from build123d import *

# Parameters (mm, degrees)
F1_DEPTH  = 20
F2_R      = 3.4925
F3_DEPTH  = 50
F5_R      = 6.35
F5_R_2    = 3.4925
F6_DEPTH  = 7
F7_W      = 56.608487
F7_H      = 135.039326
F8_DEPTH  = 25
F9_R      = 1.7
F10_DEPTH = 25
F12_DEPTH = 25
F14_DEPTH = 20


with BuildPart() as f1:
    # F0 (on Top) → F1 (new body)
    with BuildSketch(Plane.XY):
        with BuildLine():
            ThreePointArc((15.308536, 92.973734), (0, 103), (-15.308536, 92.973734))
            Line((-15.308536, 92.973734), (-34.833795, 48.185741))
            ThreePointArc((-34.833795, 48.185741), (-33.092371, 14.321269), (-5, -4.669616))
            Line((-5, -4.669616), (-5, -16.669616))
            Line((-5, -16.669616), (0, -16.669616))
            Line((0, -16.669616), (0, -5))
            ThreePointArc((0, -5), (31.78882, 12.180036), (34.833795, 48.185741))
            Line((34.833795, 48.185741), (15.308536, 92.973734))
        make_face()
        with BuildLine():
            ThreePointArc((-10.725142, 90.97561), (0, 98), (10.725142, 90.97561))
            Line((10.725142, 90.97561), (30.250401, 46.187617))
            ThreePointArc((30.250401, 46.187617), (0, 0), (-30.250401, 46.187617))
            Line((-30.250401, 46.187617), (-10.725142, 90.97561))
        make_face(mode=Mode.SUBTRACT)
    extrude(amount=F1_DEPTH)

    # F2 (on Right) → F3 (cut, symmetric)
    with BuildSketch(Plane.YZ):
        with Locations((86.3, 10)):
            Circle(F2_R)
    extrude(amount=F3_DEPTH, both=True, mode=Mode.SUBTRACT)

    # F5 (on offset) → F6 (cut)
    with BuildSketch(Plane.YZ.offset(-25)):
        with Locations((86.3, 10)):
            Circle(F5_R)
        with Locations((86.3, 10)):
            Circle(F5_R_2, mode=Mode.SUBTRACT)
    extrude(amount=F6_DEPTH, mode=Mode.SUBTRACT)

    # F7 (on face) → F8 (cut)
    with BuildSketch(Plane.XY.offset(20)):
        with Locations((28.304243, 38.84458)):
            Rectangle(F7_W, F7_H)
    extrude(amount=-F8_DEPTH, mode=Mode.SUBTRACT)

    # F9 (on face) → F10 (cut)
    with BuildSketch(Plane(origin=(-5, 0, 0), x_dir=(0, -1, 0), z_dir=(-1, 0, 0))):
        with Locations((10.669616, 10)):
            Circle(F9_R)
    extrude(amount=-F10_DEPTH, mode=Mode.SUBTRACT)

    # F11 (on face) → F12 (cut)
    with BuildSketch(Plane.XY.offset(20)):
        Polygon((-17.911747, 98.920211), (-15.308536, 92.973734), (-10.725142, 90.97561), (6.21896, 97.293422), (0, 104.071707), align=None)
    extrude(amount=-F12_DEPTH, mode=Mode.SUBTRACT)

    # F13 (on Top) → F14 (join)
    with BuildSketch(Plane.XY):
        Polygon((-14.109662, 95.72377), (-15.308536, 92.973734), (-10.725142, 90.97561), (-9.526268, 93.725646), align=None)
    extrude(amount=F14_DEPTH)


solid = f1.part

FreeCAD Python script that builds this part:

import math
import FreeCAD as App
import Part
import Sketcher

V = App.Vector


def add_polygon(sketch, points):
    """Adds a closed chain of lines whose ends are joined by coincident constraints."""
    first, n = sketch.GeometryCount, len(points)
    for a, b in zip(points, points[1:] + points[:1]):
        sketch.addGeometry(Part.LineSegment(App.Vector(*a, 0), App.Vector(*b, 0)), False)
    for i in range(n):
        sketch.addConstraint(Sketcher.Constraint("Coincident", first + i, 2, first + (i + 1) % n, 1))

doc = App.newDocument("Part")
body = doc.addObject("PartDesign::Body", "Body")

# Sketch on XY plane
sketch1 = body.newObject("Sketcher::SketchObject", "Sketch")
sketch1.AttachmentSupport = (doc.getObject("XY_Plane"), [""])
sketch1.MapMode = "FlatFace"
sketch1.addGeometry(Part.ArcOfCircle(Part.Circle(V(0, 86, 0), V(0, 0, 1), 17), math.radians(24), math.radians(156)), False)
sketch1.addGeometry(Part.LineSegment(V(-15, 93, 0), V(-35, 48, 0)), False)
sketch1.addGeometry(Part.ArcOfCircle(Part.Circle(V(0, 33, 0), V(0, 0, 1), 38), math.radians(156), math.radians(262)), False)
sketch1.addGeometry(Part.LineSegment(V(-5, -5, 0), V(-5, -17, 0)), False)
sketch1.addGeometry(Part.LineSegment(V(-5, -17, 0), V(0, -17, 0)), False)
sketch1.addGeometry(Part.LineSegment(V(0, -17, 0), V(0, -5, 0)), False)
sketch1.addGeometry(Part.ArcOfCircle(Part.Circle(V(0, 33, 0), V(0, 0, 1), 38), math.radians(-90), math.radians(24)), False)
sketch1.addGeometry(Part.LineSegment(V(35, 48, 0), V(15, 93, 0)), False)
sketch1.addGeometry(Part.LineSegment(V(-30, 46, 0), V(-11, 91, 0)), False)
sketch1.addGeometry(Part.ArcOfCircle(Part.Circle(V(0, 86, 0), V(0, 0, 1), 12), math.radians(24), math.radians(156)), False)
sketch1.addGeometry(Part.LineSegment(V(11, 91, 0), V(30, 46, 0)), False)
sketch1.addGeometry(Part.ArcOfCircle(Part.Circle(V(0, 33, 0), V(0, 0, 1), 33), math.radians(156), math.radians(384)), False)
sketch1.addConstraint(Sketcher.Constraint("Tangent", 0, 2, 1, 1))
sketch1.addConstraint(Sketcher.Constraint("Tangent", 1, 2, 2, 1))
sketch1.addConstraint(Sketcher.Constraint("Coincident", 2, 2, 3, 1))
sketch1.addConstraint(Sketcher.Constraint("Coincident", 3, 2, 4, 1))
sketch1.addConstraint(Sketcher.Constraint("Coincident", 4, 2, 5, 1))
sketch1.addConstraint(Sketcher.Constraint("Coincident", 5, 2, 6, 1))
sketch1.addConstraint(Sketcher.Constraint("Tangent", 6, 2, 7, 1))
sketch1.addConstraint(Sketcher.Constraint("Tangent", 7, 2, 0, 1))
sketch1.addConstraint(Sketcher.Constraint("Tangent", 8, 2, 9, 2))
sketch1.addConstraint(Sketcher.Constraint("Tangent", 9, 1, 10, 1))
sketch1.addConstraint(Sketcher.Constraint("Tangent", 10, 2, 11, 2))
sketch1.addConstraint(Sketcher.Constraint("Tangent", 11, 1, 8, 1))
sketch1.addConstraint(Sketcher.Constraint("Vertical", 3))
sketch1.addConstraint(Sketcher.Constraint("Horizontal", 4))
sketch1.addConstraint(Sketcher.Constraint("Vertical", 5))
sketch1.addConstraint(Sketcher.Constraint("Coincident", 6, 3, 2, 3))
sketch1.addConstraint(Sketcher.Constraint("Coincident", 9, 3, 0, 3))
sketch1.addConstraint(Sketcher.Constraint("Coincident", 11, 3, 2, 3))
sketch1.addConstraint(Sketcher.Constraint("Equal", 2, 6))
sketch1.addConstraint(Sketcher.Constraint("Symmetric", 1, 2, 6, 2, -2))
sketch1.addConstraint(Sketcher.Constraint("PointOnObject", 4, 2, -2))
sketch1.addConstraint(Sketcher.Constraint("Parallel", 1, 8))
sketch1.addConstraint(Sketcher.Constraint("Radius", 2, 37.999999))
sketch1.addConstraint(Sketcher.Constraint("Radius", 11, 33.0))
sketch1.addConstraint(Sketcher.Constraint("Radius", 0, 16.7))
sketch1.addConstraint(Sketcher.Constraint("DistanceX", 4, 1, 4, 2, 5.0))
sketch1.addConstraint(Sketcher.Constraint("DistanceY", 3, 2, 3, 1, 12.0))
sketch1.addConstraint(Sketcher.Constraint("DistanceY", -1, 1, 2, 3, 33.0))
sketch1.addConstraint(Sketcher.Constraint("DistanceY", -1, 1, 0, 3, 86.3))
pad1 = body.newObject("PartDesign::Pad", "Pad")
pad1.Profile = sketch1
pad1.Length = 20

# Sketch on YZ plane
sketch2 = body.newObject("Sketcher::SketchObject", "Sketch001")
sketch2.AttachmentSupport = (doc.getObject("YZ_Plane"), [""])
sketch2.MapMode = "FlatFace"
sketch2.addGeometry(Part.Circle(V(86.3, 10, 0), V(0, 0, 1), 3.5), False)
sketch2.addConstraint(Sketcher.Constraint("Diameter", 0, 6.985))
sketch2.addConstraint(Sketcher.Constraint("DistanceY", -1, 1, 0, 3, 10.0))
sketch2.addConstraint(Sketcher.Constraint("DistanceX", -1, 1, 0, 3, 86.3))
pocket1 = body.newObject("PartDesign::Pocket", "Pocket")
pocket1.Profile = sketch2
pocket1.Length = 100
pocket1.Midplane = True

# Sketch on YZ plane
sketch3 = body.newObject("Sketcher::SketchObject", "Sketch002")
sketch3.AttachmentSupport = (doc.getObject("YZ_Plane"), [""])
sketch3.MapMode = "FlatFace"
sketch3.AttachmentOffset = App.Placement(V(0, 0, -25), App.Rotation())
sketch3.addGeometry(Part.Circle(V(86.3, 10, 0), V(0, 0, 1), 6.3), False)
sketch3.addGeometry(Part.Circle(V(86.3, 10, 0), V(0, 0, 1), 3.5), False)
sketch3.addConstraint(Sketcher.Constraint("Coincident", 1, 3, 0, 3))
sketch3.addConstraint(Sketcher.Constraint("Diameter", 0, 12.7))
sketch3.addConstraint(Sketcher.Constraint("Diameter", 1, 6.985))
sketch3.addConstraint(Sketcher.Constraint("DistanceY", -1, 1, 0, 3, 10.0))
sketch3.addConstraint(Sketcher.Constraint("DistanceX", -1, 1, 0, 3, 86.3))
pocket2 = body.newObject("PartDesign::Pocket", "Pocket001")
pocket2.Profile = sketch3
pocket2.Length = 7
pocket2.Reversed = True

# Sketch on XY plane
sketch4 = body.newObject("Sketcher::SketchObject", "Sketch003")
sketch4.AttachmentSupport = (doc.getObject("XY_Plane"), [""])
sketch4.MapMode = "FlatFace"
sketch4.AttachmentOffset = App.Placement(V(0, 0, 20), App.Rotation())
add_polygon(sketch4, [(0, 106), (0, -29), (57, -29), (57, 106)])  # lines 0-3
sketch4.addConstraint(Sketcher.Constraint("Vertical", 0))
sketch4.addConstraint(Sketcher.Constraint("Horizontal", 1))
sketch4.addConstraint(Sketcher.Constraint("Vertical", 2))
sketch4.addConstraint(Sketcher.Constraint("Horizontal", 3))
sketch4.addConstraint(Sketcher.Constraint("PointOnObject", 0, 2, -2))
sketch4.addConstraint(Sketcher.Constraint("DistanceX", 1, 1, 1, 2, 56.608487))
sketch4.addConstraint(Sketcher.Constraint("DistanceY", 0, 2, 0, 1, 135.039326))
sketch4.addConstraint(Sketcher.Constraint("DistanceY", 0, 2, -1, 1, 28.675083))
pocket3 = body.newObject("PartDesign::Pocket", "Pocket002")
pocket3.Profile = sketch4
pocket3.Length = 25

# Sketch on YZ plane
sketch5 = body.newObject("Sketcher::SketchObject", "Sketch004")
sketch5.AttachmentSupport = (doc.getObject("YZ_Plane"), [""])
sketch5.MapMode = "FlatFace"
sketch5.AttachmentOffset = App.Placement(V(0, 0, -5), App.Rotation())
sketch5.addGeometry(Part.Circle(V(-10.7, 10, 0), V(0, 0, 1), 1.7), False)
sketch5.addConstraint(Sketcher.Constraint("Diameter", 0, 3.4))
sketch5.addConstraint(Sketcher.Constraint("DistanceY", -1, 1, 0, 3, 10.0))
sketch5.addConstraint(Sketcher.Constraint("DistanceX", 0, 3, -1, 1, 10.669616))
pocket4 = body.newObject("PartDesign::Pocket", "Pocket003")
pocket4.Profile = sketch5
pocket4.Length = 25
pocket4.Reversed = True

# Sketch on XY plane
sketch6 = body.newObject("Sketcher::SketchObject", "Sketch005")
sketch6.AttachmentSupport = (doc.getObject("XY_Plane"), [""])
sketch6.MapMode = "FlatFace"
sketch6.AttachmentOffset = App.Placement(V(0, 0, 20), App.Rotation())
add_polygon(sketch6, [(-18, 99), (-15, 93), (-11, 91), (6, 97), (0, 104)])  # lines 0-4
sketch6.addConstraint(Sketcher.Constraint("PointOnObject", 3, 2, -2))
sketch6.addConstraint(Sketcher.Constraint("Distance", 1, 5.0))
sketch6.addConstraint(Sketcher.Constraint("DistanceY", 1, 2, 4, 2, 7.944601))
sketch6.addConstraint(Sketcher.Constraint("Distance", 2, 18.083621))
sketch6.addConstraint(Sketcher.Constraint("DistanceY", -1, 1, 1, 2, 90.97561))
sketch6.addConstraint(Sketcher.Constraint("DistanceX", -1, 1, 2, 2, 6.21896))
sketch6.addConstraint(Sketcher.Constraint("DistanceY", 0, 2, 2, 2, 4.319688))
sketch6.addConstraint(Sketcher.Constraint("DistanceX", 4, 2, 0, 2, 2.603211))
sketch6.addConstraint(Sketcher.Constraint("DistanceY", 2, 2, 4, 2, 1.626789))
sketch6.addConstraint(Sketcher.Constraint("Distance", 3, 9.198946))
pocket5 = body.newObject("PartDesign::Pocket", "Pocket004")
pocket5.Profile = sketch6
pocket5.Length = 25

# Sketch on XY plane
sketch7 = body.newObject("Sketcher::SketchObject", "Sketch006")
sketch7.AttachmentSupport = (doc.getObject("XY_Plane"), [""])
sketch7.MapMode = "FlatFace"
add_polygon(sketch7, [(-14.1, 95.7), (-15.3, 93), (-10.7, 91), (-9.5, 93.7)])  # lines 0-3
sketch7.addConstraint(Sketcher.Constraint("Perpendicular", 0, 1))
sketch7.addConstraint(Sketcher.Constraint("Perpendicular", 1, 2))
sketch7.addConstraint(Sketcher.Constraint("Perpendicular", 2, 3))
sketch7.addConstraint(Sketcher.Constraint("Distance", 0, 2.999999))
sketch7.addConstraint(Sketcher.Constraint("Distance", 1, 5.0))
sketch7.addConstraint(Sketcher.Constraint("DistanceY", -1, 1, 1, 2, 90.97561))
sketch7.addConstraint(Sketcher.Constraint("DistanceY", -1, 1, 3, 2, 95.72377))
sketch7.addConstraint(Sketcher.Constraint("DistanceX", 0, 2, -1, 1, 15.308536))
pad2 = body.newObject("PartDesign::Pad", "Pad001")
pad2.Profile = sketch7
pad2.Length = 20

doc.recompute()
